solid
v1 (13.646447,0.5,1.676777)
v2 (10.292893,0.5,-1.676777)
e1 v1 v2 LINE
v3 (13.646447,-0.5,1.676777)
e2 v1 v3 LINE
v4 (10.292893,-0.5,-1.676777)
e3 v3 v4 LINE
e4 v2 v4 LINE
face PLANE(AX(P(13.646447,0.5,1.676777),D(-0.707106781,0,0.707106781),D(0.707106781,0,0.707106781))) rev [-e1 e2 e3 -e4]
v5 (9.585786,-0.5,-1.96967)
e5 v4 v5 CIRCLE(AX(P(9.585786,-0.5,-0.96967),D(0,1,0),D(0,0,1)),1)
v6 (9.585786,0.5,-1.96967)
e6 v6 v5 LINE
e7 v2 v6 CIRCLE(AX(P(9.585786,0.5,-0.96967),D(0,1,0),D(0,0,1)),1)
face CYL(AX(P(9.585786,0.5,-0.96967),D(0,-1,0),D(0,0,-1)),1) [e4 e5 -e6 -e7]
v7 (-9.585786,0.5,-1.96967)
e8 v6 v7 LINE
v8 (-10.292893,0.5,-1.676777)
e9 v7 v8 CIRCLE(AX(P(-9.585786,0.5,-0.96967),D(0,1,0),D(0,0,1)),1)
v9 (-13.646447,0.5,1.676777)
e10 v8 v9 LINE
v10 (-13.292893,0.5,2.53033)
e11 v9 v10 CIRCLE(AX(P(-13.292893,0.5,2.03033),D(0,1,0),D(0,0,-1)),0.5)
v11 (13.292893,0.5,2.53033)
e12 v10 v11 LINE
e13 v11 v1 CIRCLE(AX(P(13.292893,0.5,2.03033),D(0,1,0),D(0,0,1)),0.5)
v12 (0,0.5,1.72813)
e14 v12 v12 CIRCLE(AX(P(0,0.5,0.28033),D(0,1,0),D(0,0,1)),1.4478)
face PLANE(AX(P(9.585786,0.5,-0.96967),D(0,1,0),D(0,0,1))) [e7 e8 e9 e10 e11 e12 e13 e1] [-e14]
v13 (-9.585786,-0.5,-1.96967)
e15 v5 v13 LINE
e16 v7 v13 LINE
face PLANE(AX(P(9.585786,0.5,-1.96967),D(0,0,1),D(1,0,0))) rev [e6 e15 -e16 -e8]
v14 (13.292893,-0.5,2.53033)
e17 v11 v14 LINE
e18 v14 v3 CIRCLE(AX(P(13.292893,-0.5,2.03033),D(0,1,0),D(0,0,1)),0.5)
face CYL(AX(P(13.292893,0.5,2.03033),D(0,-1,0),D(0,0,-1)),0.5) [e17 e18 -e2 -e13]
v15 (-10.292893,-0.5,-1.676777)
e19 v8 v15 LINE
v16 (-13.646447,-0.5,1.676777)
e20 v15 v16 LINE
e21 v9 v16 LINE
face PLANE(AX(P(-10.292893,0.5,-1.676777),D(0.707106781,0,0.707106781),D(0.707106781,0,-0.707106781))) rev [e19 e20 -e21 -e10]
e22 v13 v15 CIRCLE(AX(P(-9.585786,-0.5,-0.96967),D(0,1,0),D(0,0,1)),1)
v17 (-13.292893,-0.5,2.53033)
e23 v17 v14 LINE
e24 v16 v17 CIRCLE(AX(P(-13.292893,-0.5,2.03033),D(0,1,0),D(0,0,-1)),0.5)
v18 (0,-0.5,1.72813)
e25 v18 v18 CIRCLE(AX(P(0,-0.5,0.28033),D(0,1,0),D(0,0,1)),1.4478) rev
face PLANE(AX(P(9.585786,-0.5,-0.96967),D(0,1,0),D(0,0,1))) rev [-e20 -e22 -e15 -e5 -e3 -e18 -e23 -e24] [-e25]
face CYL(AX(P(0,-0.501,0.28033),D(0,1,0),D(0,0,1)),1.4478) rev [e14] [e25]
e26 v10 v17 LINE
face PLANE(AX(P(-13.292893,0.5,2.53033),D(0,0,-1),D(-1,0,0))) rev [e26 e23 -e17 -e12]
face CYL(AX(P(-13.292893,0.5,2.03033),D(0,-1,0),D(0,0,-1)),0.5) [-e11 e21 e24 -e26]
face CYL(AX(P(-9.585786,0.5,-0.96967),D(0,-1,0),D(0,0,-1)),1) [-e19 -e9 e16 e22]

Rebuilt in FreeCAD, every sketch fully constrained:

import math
import FreeCAD as App
import Part
import Sketcher

V = App.Vector

doc = App.newDocument("Part")
body = doc.addObject("PartDesign::Body", "Body")

# Sketch on XZ plane
sketch1 = body.newObject("Sketcher::SketchObject", "Sketch")
sketch1.AttachmentSupport = (doc.getObject("XZ_Plane"), [""])
sketch1.MapMode = "FlatFace"
sketch1.addGeometry([
    Part.LineSegment(V(-13.3, 2.5, 0), V(13.3, 2.5, 0)),  # 0
    Part.ArcOfCircle(Part.Circle(V(13.3, 2, 0), V(0, 0, 1), 0.5), math.radians(-45), math.radians(90)),  # 1
    Part.LineSegment(V(13.6, 1.7, 0), V(10.3, -1.7, 0)),  # 2
    Part.ArcOfCircle(Part.Circle(V(9.6, -1, 0), V(0, 0, 1), 1), math.radians(-90), math.radians(-45)),  # 3
    Part.LineSegment(V(9.6, -2, 0), V(-9.6, -2, 0)),  # 4
    Part.ArcOfCircle(Part.Circle(V(-9.6, -1, 0), V(0, 0, 1), 1), math.radians(-135), math.radians(-90)),  # 5
    Part.LineSegment(V(-10.3, -1.7, 0), V(-13.6, 1.7, 0)),  # 6
    Part.ArcOfCircle(Part.Circle(V(-13.3, 2, 0), V(0, 0, 1), 0.5), math.radians(90), math.radians(225)),  # 7
], False)
sketch1.addConstraint([
    Sketcher.Constraint("Tangent", 0, 2, 1, 2),
    Sketcher.Constraint("Tangent", 1, 1, 2, 1),
    Sketcher.Constraint("Tangent", 2, 2, 3, 2),
    Sketcher.Constraint("Tangent", 3, 1, 4, 1),
    Sketcher.Constraint("Tangent", 4, 2, 5, 2),
    Sketcher.Constraint("Tangent", 5, 1, 6, 1),
    Sketcher.Constraint("Tangent", 6, 2, 7, 2),
    Sketcher.Constraint("Tangent", 7, 1, 0, 1),
    Sketcher.Constraint("Horizontal", 0),
    Sketcher.Constraint("Horizontal", 4),
    Sketcher.Constraint("Equal", 3, 5),
    Sketcher.Constraint("Equal", 1, 7),
    Sketcher.Constraint("Symmetric", 2, 2, 5, 1, -2),
    Sketcher.Constraint("Perpendicular", 2, 6),
    Sketcher.Constraint("Radius", 3, 1.0),
    Sketcher.Constraint("Radius", 1, 0.5),
    Sketcher.Constraint("DistanceY", 3, 3, 1, 3, 3.0),
    Sketcher.Constraint("DistanceX", 0, 1, 0, 2, 26.585786),
    Sketcher.Constraint("DistanceY", -1, 1, 1, 3, 2.03033),
])
pad1 = body.newObject("PartDesign::Pad", "Pad")
pad1.Profile = sketch1
pad1.Length = 1
pad1.Midplane = True

# Sketch on XZ plane
sketch2 = body.newObject("Sketcher::SketchObject", "Sketch001")
sketch2.AttachmentSupport = (doc.getObject("XZ_Plane"), [""])
sketch2.MapMode = "FlatFace"
sketch2.AttachmentOffset = App.Placement(V(0, 0, -0.5), App.Rotation())
sketch2.addGeometry(Part.Circle(V(0, 0.3, 0), V(0, 0, 1), 1.4), False)
sketch2.addConstraint([
    Sketcher.Constraint("PointOnObject", 0, 3, -2),
    Sketcher.Constraint("Diameter", 0, 2.8956),
    Sketcher.Constraint("DistanceY", -1, 1, 0, 3, 0.28033),
])
pocket1 = body.newObject("PartDesign::Pocket", "Pocket")
pocket1.Profile = sketch2
pocket1.Type = "UpToFirst"
pocket1.Reversed = True

doc.recompute()
